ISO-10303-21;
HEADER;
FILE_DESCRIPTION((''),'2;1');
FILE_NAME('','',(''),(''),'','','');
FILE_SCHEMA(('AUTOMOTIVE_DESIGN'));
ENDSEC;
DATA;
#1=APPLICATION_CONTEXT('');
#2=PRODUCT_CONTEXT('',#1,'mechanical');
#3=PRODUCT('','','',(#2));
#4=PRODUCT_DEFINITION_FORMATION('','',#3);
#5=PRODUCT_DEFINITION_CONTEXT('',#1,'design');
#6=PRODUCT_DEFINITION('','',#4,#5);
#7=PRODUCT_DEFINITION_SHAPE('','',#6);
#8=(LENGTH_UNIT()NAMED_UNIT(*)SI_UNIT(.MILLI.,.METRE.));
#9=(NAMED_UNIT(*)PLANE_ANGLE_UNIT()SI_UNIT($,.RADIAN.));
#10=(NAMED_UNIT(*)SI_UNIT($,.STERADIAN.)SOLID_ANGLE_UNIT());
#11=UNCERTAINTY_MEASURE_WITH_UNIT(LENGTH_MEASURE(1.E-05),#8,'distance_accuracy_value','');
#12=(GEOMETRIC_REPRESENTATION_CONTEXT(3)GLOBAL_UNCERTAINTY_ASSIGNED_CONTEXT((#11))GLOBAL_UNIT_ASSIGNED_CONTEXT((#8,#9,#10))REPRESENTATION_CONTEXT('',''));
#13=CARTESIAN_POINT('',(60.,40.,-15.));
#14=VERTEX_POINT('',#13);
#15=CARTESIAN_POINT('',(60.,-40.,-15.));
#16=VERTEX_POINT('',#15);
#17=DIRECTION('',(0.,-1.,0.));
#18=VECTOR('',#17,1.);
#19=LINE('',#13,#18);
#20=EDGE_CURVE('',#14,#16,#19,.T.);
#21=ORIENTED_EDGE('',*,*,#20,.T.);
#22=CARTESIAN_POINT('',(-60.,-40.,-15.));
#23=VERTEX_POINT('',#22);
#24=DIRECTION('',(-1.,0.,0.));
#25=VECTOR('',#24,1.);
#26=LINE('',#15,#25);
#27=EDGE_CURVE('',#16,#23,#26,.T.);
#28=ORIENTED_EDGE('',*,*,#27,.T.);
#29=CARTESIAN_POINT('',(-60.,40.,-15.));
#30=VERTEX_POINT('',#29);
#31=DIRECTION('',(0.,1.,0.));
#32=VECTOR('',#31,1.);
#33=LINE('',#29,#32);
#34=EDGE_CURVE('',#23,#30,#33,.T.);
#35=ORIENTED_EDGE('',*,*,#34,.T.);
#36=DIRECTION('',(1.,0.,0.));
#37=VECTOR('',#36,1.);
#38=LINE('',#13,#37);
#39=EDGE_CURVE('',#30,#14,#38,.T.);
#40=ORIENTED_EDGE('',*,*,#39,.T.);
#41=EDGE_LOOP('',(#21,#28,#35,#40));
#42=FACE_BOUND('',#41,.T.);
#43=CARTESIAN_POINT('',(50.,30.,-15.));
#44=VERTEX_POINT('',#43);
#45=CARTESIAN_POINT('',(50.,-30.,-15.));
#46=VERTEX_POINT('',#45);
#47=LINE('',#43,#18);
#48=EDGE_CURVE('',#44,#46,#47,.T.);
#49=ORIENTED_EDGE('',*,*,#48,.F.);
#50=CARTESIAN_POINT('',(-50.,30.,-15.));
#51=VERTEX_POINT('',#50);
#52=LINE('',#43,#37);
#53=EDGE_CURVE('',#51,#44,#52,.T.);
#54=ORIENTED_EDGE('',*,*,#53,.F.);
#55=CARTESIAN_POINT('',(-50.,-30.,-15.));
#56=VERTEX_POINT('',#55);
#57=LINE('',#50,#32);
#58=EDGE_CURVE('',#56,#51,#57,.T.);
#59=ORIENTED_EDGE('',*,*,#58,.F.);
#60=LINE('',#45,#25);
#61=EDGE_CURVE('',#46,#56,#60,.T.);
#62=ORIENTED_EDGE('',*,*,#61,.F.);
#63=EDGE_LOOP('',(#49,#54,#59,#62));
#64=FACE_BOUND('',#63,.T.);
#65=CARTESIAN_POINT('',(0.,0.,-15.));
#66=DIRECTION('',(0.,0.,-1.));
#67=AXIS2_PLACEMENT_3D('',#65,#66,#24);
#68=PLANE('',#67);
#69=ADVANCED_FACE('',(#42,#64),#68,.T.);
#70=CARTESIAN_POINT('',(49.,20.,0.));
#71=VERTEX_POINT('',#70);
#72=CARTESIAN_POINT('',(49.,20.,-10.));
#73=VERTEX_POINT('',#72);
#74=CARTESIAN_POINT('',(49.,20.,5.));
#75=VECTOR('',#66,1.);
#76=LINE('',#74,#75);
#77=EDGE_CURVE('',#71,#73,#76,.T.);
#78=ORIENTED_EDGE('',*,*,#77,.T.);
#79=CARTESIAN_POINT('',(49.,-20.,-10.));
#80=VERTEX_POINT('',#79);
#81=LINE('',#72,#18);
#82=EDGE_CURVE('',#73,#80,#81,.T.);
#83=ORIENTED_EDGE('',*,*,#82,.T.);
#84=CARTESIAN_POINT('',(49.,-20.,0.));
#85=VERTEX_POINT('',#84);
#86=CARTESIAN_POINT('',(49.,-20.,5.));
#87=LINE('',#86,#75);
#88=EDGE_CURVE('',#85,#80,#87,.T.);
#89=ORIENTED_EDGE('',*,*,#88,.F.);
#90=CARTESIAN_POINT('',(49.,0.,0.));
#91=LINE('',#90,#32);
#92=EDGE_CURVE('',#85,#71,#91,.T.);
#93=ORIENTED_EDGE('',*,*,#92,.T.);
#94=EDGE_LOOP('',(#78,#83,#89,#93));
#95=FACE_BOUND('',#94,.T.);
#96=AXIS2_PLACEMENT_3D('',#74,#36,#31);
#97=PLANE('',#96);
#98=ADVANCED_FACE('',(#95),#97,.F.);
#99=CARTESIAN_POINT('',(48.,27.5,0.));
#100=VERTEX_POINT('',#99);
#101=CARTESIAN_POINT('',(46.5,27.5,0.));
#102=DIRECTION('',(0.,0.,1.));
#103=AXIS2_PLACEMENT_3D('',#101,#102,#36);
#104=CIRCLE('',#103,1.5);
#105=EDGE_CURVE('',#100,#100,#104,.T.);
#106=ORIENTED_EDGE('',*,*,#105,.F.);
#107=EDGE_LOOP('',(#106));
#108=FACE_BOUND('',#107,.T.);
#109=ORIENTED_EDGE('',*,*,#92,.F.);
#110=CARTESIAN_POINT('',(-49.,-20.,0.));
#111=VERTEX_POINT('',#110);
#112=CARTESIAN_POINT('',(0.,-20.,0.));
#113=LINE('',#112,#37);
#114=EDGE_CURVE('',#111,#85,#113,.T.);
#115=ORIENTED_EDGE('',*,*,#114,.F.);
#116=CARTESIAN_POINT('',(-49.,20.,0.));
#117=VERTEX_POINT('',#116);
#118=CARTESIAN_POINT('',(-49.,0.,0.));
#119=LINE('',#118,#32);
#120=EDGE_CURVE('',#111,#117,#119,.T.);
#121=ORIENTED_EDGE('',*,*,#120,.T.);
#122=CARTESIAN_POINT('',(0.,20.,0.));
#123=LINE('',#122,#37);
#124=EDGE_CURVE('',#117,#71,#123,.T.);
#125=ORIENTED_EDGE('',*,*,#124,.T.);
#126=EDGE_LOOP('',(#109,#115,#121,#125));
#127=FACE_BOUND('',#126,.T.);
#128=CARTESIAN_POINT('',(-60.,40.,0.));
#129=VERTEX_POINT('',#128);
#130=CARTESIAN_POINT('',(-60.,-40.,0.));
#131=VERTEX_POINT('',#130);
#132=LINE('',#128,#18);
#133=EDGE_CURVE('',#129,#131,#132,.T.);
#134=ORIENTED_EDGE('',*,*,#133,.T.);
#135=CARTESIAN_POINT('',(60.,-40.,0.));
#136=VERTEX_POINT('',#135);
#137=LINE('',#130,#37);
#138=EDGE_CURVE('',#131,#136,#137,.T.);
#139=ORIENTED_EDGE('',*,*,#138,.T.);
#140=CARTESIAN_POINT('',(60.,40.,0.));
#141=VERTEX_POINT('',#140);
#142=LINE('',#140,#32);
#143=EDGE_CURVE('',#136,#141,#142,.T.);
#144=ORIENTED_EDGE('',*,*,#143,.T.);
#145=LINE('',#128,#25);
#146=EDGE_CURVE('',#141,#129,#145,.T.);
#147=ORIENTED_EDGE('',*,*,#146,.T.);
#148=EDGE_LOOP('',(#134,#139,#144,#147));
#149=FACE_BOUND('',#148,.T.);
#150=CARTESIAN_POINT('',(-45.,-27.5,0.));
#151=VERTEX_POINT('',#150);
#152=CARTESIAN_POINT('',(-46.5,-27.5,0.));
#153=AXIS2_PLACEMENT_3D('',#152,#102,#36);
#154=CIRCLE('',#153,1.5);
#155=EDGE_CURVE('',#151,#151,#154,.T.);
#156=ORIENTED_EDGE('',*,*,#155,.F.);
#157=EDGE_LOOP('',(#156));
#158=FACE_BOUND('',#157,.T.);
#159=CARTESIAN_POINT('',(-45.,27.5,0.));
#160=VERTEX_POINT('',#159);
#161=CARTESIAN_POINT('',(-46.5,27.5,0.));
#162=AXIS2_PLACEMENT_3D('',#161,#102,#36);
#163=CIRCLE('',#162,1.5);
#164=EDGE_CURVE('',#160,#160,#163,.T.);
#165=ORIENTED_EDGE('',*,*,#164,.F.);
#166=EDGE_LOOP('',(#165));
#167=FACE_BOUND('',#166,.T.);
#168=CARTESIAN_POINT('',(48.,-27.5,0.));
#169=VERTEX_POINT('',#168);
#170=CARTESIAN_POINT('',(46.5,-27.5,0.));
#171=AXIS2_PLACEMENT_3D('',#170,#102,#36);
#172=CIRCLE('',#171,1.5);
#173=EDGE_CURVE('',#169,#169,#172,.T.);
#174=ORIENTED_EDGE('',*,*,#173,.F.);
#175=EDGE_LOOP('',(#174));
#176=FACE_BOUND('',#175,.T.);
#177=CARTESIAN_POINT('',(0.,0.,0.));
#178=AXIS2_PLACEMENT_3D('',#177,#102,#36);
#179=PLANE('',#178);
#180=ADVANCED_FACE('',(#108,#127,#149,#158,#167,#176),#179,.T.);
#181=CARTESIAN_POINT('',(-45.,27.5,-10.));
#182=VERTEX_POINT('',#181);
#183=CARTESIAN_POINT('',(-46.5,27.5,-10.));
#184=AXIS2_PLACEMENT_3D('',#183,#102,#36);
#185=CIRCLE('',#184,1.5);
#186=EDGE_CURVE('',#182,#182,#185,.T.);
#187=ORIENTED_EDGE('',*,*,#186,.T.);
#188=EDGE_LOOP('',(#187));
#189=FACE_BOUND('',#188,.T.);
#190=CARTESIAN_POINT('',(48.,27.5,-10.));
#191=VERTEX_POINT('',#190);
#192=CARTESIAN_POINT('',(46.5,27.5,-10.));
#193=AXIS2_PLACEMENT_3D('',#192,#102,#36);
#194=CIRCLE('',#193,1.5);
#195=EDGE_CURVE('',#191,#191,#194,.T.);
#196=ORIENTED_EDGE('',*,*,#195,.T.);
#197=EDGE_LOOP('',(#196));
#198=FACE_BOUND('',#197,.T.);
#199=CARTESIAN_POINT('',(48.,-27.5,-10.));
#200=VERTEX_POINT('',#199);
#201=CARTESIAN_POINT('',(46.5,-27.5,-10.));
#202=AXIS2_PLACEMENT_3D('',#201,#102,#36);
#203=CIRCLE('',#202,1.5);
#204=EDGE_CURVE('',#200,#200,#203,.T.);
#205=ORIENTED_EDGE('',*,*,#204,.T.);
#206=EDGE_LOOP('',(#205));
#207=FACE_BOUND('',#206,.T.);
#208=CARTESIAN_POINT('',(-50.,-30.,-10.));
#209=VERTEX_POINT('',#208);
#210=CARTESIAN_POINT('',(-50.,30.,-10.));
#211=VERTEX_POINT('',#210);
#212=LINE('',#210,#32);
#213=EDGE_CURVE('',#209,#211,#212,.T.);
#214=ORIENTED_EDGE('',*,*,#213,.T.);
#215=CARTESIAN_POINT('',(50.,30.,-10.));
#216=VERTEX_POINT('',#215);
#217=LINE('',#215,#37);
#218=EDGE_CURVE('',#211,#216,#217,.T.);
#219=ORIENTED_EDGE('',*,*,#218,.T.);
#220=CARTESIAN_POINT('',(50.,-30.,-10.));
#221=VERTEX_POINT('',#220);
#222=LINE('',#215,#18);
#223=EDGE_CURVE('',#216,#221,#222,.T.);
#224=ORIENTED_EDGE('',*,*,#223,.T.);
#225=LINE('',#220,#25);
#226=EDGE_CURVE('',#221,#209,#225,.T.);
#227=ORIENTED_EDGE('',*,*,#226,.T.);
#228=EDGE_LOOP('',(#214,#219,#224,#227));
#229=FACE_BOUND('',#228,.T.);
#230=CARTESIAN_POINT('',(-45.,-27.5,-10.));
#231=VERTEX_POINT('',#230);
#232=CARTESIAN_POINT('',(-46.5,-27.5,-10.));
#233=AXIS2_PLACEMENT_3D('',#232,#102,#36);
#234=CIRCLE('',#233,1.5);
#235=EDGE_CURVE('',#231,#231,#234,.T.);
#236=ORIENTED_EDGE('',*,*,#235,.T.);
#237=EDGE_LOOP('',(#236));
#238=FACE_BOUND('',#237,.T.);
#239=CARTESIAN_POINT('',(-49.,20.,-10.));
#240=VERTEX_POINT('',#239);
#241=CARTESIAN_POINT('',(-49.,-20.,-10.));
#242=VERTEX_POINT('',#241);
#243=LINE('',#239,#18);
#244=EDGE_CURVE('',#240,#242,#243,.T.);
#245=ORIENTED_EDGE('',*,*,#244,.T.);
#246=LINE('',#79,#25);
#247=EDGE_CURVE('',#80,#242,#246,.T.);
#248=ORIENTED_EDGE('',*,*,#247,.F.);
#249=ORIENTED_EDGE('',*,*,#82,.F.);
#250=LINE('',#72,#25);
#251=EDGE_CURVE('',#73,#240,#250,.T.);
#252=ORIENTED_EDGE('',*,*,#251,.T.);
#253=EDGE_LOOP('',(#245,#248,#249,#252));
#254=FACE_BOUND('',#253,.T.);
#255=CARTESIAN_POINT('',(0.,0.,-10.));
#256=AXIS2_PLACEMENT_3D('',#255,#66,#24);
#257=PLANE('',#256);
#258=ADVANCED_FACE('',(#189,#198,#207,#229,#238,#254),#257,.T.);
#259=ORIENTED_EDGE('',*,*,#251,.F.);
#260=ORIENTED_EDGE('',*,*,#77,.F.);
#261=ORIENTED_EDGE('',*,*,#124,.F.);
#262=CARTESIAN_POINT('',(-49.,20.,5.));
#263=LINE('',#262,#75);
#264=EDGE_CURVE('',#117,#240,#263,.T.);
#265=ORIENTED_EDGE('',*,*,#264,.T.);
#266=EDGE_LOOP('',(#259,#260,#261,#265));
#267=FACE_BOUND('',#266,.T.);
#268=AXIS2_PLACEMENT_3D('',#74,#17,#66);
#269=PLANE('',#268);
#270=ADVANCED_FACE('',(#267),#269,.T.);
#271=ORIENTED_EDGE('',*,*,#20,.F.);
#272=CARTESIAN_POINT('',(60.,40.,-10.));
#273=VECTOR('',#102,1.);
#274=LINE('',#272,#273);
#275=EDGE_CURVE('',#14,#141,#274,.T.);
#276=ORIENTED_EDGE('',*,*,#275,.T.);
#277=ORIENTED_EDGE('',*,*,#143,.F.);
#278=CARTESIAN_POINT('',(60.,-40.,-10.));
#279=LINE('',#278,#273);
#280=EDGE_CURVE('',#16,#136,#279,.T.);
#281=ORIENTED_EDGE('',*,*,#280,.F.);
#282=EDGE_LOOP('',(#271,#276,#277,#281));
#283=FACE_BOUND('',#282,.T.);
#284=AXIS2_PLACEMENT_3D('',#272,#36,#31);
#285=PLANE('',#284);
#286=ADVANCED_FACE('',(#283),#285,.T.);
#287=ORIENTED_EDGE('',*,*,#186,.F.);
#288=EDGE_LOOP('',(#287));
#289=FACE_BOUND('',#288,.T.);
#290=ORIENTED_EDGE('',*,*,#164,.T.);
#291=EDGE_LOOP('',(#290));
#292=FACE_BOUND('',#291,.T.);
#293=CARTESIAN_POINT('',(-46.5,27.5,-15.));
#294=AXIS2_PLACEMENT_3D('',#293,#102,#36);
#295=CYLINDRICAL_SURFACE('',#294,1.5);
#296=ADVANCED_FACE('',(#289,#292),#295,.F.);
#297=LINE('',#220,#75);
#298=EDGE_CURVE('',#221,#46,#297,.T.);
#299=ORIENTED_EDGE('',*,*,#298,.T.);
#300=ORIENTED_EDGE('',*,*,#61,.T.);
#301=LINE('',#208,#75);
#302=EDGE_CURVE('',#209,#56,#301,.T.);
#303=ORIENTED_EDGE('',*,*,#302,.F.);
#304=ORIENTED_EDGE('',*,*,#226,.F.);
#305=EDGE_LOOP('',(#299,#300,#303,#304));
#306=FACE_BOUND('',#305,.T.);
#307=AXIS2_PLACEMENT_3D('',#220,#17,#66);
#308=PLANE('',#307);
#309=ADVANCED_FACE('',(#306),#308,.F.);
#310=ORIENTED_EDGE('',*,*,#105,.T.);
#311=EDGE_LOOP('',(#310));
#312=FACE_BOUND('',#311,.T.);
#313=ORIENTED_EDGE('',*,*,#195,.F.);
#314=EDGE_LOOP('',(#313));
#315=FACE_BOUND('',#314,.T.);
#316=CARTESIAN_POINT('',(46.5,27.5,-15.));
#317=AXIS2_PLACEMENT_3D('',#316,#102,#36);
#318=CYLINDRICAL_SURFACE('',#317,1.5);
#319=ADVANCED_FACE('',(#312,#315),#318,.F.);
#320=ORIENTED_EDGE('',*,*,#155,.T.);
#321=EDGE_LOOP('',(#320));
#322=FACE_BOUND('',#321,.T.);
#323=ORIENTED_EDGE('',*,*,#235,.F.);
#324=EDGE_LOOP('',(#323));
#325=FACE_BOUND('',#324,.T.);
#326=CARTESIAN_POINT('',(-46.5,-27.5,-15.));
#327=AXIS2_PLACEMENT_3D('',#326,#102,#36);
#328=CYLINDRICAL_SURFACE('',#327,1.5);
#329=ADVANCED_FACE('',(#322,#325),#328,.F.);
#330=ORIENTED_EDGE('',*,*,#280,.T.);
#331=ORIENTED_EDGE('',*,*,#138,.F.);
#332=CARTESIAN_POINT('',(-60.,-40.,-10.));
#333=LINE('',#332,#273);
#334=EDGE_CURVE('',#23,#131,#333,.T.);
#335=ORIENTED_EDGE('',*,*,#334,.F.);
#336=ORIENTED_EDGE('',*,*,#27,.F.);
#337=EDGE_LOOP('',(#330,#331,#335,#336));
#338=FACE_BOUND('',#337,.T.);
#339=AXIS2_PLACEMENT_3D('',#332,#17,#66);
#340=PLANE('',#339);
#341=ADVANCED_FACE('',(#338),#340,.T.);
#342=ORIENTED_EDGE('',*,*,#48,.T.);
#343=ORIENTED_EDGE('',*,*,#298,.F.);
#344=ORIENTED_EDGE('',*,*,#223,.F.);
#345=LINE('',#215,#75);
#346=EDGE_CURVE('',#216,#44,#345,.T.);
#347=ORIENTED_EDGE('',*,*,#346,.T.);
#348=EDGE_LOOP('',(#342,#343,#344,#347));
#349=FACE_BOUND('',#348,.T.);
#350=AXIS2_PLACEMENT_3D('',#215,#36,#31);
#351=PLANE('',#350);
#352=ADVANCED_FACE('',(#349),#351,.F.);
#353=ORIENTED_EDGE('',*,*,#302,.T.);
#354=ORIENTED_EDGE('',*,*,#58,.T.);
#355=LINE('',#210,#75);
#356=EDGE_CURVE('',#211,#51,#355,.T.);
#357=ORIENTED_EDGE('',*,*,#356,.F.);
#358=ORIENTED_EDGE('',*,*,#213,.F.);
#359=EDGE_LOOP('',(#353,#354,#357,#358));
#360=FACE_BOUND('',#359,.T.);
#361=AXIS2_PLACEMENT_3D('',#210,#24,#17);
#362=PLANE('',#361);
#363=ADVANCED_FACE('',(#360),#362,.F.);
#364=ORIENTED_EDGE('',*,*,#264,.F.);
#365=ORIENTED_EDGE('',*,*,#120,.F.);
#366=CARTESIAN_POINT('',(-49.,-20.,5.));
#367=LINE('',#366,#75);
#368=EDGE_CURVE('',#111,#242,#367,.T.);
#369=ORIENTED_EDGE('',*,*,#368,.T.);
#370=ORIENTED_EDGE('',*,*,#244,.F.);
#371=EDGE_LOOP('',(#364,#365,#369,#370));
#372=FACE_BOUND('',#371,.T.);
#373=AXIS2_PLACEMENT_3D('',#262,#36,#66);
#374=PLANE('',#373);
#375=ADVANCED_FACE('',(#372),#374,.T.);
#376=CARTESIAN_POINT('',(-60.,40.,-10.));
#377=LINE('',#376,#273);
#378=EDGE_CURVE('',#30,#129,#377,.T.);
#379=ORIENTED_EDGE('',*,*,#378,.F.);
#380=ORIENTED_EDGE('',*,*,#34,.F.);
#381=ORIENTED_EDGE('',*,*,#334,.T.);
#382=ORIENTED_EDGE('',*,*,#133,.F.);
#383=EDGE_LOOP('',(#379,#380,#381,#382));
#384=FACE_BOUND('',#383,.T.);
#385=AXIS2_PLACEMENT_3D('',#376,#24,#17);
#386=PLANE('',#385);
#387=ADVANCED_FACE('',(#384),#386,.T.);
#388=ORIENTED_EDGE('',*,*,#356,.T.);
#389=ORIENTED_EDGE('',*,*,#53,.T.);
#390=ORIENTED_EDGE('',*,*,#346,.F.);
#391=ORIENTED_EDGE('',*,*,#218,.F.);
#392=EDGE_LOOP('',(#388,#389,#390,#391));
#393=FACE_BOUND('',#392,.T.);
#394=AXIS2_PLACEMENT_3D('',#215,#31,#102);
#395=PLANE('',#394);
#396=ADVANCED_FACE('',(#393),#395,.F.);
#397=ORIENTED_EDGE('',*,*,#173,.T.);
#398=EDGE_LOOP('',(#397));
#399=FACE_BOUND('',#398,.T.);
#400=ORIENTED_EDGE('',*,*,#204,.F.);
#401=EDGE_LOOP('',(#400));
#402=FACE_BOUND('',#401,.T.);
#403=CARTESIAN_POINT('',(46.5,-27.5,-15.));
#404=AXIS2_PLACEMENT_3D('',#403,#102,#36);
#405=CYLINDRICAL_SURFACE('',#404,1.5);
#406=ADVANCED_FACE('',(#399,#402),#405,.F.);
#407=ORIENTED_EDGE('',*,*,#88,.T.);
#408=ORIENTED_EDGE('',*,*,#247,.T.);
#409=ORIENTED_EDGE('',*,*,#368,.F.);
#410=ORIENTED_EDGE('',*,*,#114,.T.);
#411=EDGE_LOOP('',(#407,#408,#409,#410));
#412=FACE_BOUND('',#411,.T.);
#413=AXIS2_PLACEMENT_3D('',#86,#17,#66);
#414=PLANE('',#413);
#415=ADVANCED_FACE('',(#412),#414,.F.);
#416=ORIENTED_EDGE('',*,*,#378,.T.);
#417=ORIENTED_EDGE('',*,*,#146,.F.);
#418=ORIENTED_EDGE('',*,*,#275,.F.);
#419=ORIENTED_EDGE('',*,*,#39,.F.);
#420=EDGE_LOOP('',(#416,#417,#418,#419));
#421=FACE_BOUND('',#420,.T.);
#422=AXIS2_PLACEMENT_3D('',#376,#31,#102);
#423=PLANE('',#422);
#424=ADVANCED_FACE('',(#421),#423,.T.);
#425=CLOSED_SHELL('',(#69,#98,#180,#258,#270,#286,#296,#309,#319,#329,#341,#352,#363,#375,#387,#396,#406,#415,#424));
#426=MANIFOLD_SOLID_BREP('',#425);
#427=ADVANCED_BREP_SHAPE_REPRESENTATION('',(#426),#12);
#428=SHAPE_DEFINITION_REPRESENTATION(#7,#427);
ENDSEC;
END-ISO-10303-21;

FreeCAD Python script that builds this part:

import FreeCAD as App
import Part
import Sketcher


def add_polygon(sketch, points):
    """Adds a closed chain of lines whose ends are joined by coincident constraints."""
    first, n = sketch.GeometryCount, len(points)
    for a, b in zip(points, points[1:] + points[:1]):
        sketch.addGeometry(Part.LineSegment(App.Vector(*a, 0), App.Vector(*b, 0)), False)
    for i in range(n):
        sketch.addConstraint(Sketcher.Constraint("Coincident", first + i, 2, first + (i + 1) % n, 1))

doc = App.newDocument("Part")
body = doc.addObject("PartDesign::Body", "Body")

# Sketch on XY plane
sketch1 = doc.addObject("Sketcher::SketchObject", "Sketch")
body.addObject(sketch1)
sketch1.AttachmentSupport = (doc.XY_Plane, [""])
sketch1.MapMode = "FlatFace"
add_polygon(sketch1, [(-60, 40), (-60, -40), (60, -40), (60, 40)])  # lines 0-3
sketch1.addConstraint(Sketcher.Constraint("Vertical", 0))
sketch1.addConstraint(Sketcher.Constraint("Horizontal", 1))
sketch1.addConstraint(Sketcher.Constraint("Vertical", 2))
sketch1.addConstraint(Sketcher.Constraint("Horizontal", 3))
sketch1.addConstraint(Sketcher.Constraint("Symmetric", 0, 2, 2, 2, -1, 1))
sketch1.addConstraint(Sketcher.Constraint("DistanceX", 1, 1, 1, 2, 120.0))
sketch1.addConstraint(Sketcher.Constraint("DistanceY", 0, 2, 0, 1, 80.0))
pad1 = doc.addObject("PartDesign::Pad", "Pad")
body.addObject(pad1)
pad1.Profile = sketch1
pad1.Length = 10
pad1.Reversed = True

# Sketch on XY plane
sketch2 = doc.addObject("Sketcher::SketchObject", "Sketch001")
body.addObject(sketch2)
sketch2.AttachmentSupport = (doc.XY_Plane, [""])
sketch2.MapMode = "FlatFace"
sketch2.AttachmentOffset = App.Placement(App.Vector(0, 0, -10), App.Rotation())
add_polygon(sketch2, [(49, 20), (49, -20), (-49, -20), (-49, 20)])  # lines 0-3
sketch2.addConstraint(Sketcher.Constraint("Vertical", 0))
sketch2.addConstraint(Sketcher.Constraint("Horizontal", 1))
sketch2.addConstraint(Sketcher.Constraint("Vertical", 2))
sketch2.addConstraint(Sketcher.Constraint("Horizontal", 3))
sketch2.addConstraint(Sketcher.Constraint("Symmetric", 0, 2, 2, 2, -1, 1))
sketch2.addConstraint(Sketcher.Constraint("DistanceX", 1, 2, 1, 1, 98.0))
sketch2.addConstraint(Sketcher.Constraint("DistanceY", 0, 2, 0, 1, 40.0))
pocket1 = doc.addObject("PartDesign::Pocket", "Pocket")
body.addObject(pocket1)
pocket1.Profile = sketch2
pocket1.Length = 15
pocket1.Reversed = True

# Sketch on XY plane
sketch3 = doc.addObject("Sketcher::SketchObject", "Sketch002")
body.addObject(sketch3)
sketch3.AttachmentSupport = (doc.XY_Plane, [""])
sketch3.MapMode = "FlatFace"
sketch3.addGeometry(Part.Circle(App.Vector(-46.5, 27.5, 0), App.Vector(0, 0, 1), 1.5), False)
sketch3.addGeometry(Part.Circle(App.Vector(46.5, 27.5, 0), App.Vector(0, 0, 1), 1.5), False)
sketch3.addGeometry(Part.Circle(App.Vector(46.5, -27.5, 0), App.Vector(0, 0, 1), 1.5), False)
sketch3.addGeometry(Part.Circle(App.Vector(-46.5, -27.5, 0), App.Vector(0, 0, 1), 1.5), False)
sketch3.addConstraint(Sketcher.Constraint("Equal", 0, 1))
sketch3.addConstraint(Sketcher.Constraint("Equal", 1, 2))
sketch3.addConstraint(Sketcher.Constraint("Equal", 2, 3))
sketch3.addConstraint(Sketcher.Constraint("Symmetric", 0, 3, 2, 3, -1, 1))
sketch3.addConstraint(Sketcher.Constraint("Symmetric", 1, 3, 3, 3, -1, 1))
sketch3.addConstraint(Sketcher.Constraint("Symmetric", 0, 3, 1, 3, -2))
sketch3.addConstraint(Sketcher.Constraint("Diameter", 0, 3.0))
sketch3.addConstraint(Sketcher.Constraint("DistanceX", 0, 3, 1, 3, 93.0))
sketch3.addConstraint(Sketcher.Constraint("DistanceY", 2, 3, 1, 3, 55.0))
pocket2 = doc.addObject("PartDesign::Pocket", "Pocket001")
body.addObject(pocket2)
pocket2.Profile = sketch3
pocket2.Length = 15

# Sketch on XY plane
sketch4 = doc.addObject("Sketcher::SketchObject", "Sketch003")
body.addObject(sketch4)
sketch4.AttachmentSupport = (doc.XY_Plane, [""])
sketch4.MapMode = "FlatFace"
sketch4.AttachmentOffset = App.Placement(App.Vector(0, 0, -10), App.Rotation())
add_polygon(sketch4, [(60, 40), (60, -40), (-60, -40), (-60, 40)])  # lines 0-3
sketch4.addConstraint(Sketcher.Constraint("Vertical", 0))
sketch4.addConstraint(Sketcher.Constraint("Horizontal", 1))
sketch4.addConstraint(Sketcher.Constraint("Vertical", 2))
sketch4.addConstraint(Sketcher.Constraint("Horizontal", 3))
sketch4.addConstraint(Sketcher.Constraint("Symmetric", 0, 2, 2, 2, -1, 1))
sketch4.addConstraint(Sketcher.Constraint("DistanceX", 1, 2, 1, 1, 120.0))
sketch4.addConstraint(Sketcher.Constraint("DistanceY", 0, 2, 0, 1, 80.0))
pad2 = doc.addObject("PartDesign::Pad", "Pad001")
body.addObject(pad2)
pad2.Profile = sketch4
pad2.Length = 5
pad2.Reversed = True

# Sketch on XY plane
sketch5 = doc.addObject("Sketcher::SketchObject", "Sketch004")
body.addObject(sketch5)
sketch5.AttachmentSupport = (doc.XY_Plane, [""])
sketch5.MapMode = "FlatFace"
sketch5.AttachmentOffset = App.Placement(App.Vector(0, 0, -15), App.Rotation())
add_polygon(sketch5, [(50, 30), (50, -30), (-50, -30), (-50, 30)])  # lines 0-3
sketch5.addConstraint(Sketcher.Constraint("Vertical", 0))
sketch5.addConstraint(Sketcher.Constraint("Horizontal", 1))
sketch5.addConstraint(Sketcher.Constraint("Vertical", 2))
sketch5.addConstraint(Sketcher.Constraint("Horizontal", 3))
sketch5.addConstraint(Sketcher.Constraint("Symmetric", 0, 2, 2, 2, -1, 1))
sketch5.addConstraint(Sketcher.Constraint("DistanceX", 1, 2, 1, 1, 100.0))
sketch5.addConstraint(Sketcher.Constraint("DistanceY", 0, 2, 0, 1, 60.0))
pocket3 = doc.addObject("PartDesign::Pocket", "Pocket002")
body.addObject(pocket3)
pocket3.Profile = sketch5
pocket3.Length = 5
pocket3.Reversed = True

doc.recompute()
